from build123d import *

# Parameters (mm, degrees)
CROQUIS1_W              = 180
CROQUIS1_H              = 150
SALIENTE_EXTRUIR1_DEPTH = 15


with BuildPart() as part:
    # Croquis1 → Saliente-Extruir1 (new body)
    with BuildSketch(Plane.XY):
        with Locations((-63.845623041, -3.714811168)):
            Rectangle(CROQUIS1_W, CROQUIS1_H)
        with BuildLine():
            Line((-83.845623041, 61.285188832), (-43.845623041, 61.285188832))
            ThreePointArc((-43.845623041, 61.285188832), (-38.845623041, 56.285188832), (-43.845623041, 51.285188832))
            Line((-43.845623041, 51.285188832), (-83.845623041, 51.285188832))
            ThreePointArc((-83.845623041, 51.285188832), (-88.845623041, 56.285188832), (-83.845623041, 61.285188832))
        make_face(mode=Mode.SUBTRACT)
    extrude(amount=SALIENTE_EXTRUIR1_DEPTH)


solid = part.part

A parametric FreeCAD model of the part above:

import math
import FreeCAD as App
import Part
import Sketcher
from FreeCAD import Vector
Q = App.Units.Quantity


def add_polygon(sketch, points):
    """Adds a closed chain of lines whose ends are joined by coincident constraints."""
    first, n = sketch.GeometryCount, len(points)
    for a, b in zip(points, points[1:] + points[:1]):
        sketch.addGeometry(Part.LineSegment(App.Vector(*a, 0), App.Vector(*b, 0)), False)
    for i in range(n):
        sketch.addConstraint(Sketcher.Constraint("Coincident", first + i, 2, first + (i + 1) % n, 1))

doc = App.newDocument("Part")
body = doc.addObject("PartDesign::Body", "Body")

# Sketch on XY plane
sketch1 = doc.addObject("Sketcher::SketchObject", "Sketch")
body.addObject(sketch1)
sketch1.AttachmentSupport = (doc.XY_Plane, [""])
sketch1.MapMode = "FlatFace"
add_polygon(sketch1, [(-153.845623, 71.285189), (-153.845623, -78.714811), (26.154377, -78.714811), (26.154377, 71.285189)])  # lines 0-3
sketch1.addGeometry(Part.ArcOfCircle(Part.Circle(Vector(-83.845623, 56.285189, 0), Vector(0, 0, 1), 5), math.radians(90), math.radians(270)), False)  # 4
sketch1.addGeometry(Part.LineSegment(Vector(-83.845623, 61.285189, 0), Vector(-43.845623, 61.285189, 0)), False)  # 5
sketch1.addGeometry(Part.ArcOfCircle(Part.Circle(Vector(-43.845623, 56.285189, 0), Vector(0, 0, 1), 5), math.radians(-90), math.radians(90)), False)  # 6
sketch1.addGeometry(Part.LineSegment(Vector(-43.845623, 51.285189, 0), Vector(-83.845623, 51.285189, 0)), False)  # 7
sketch1.addConstraint(Sketcher.Constraint("Tangent", 4, 1, 5, 1))
sketch1.addConstraint(Sketcher.Constraint("Tangent", 5, 2, 6, 2))
sketch1.addConstraint(Sketcher.Constraint("Tangent", 6, 1, 7, 1))
sketch1.addConstraint(Sketcher.Constraint("Tangent", 7, 2, 4, 2))
sketch1.addConstraint(Sketcher.Constraint("Vertical", 0))
sketch1.addConstraint(Sketcher.Constraint("Horizontal", 1))
sketch1.addConstraint(Sketcher.Constraint("Vertical", 2))
sketch1.addConstraint(Sketcher.Constraint("Horizontal", 3))
sketch1.addConstraint(Sketcher.Constraint("Horizontal", 5))
sketch1.addConstraint(Sketcher.Constraint("Horizontal", 7))
sketch1.addConstraint(Sketcher.Constraint("Radius", 4, Q("5 mm")))
sketch1.addConstraint(Sketcher.Constraint("DistanceX", 1, 1, 1, 2, Q("180 mm")))
sketch1.addConstraint(Sketcher.Constraint("DistanceX", 5, 1, 5, 2, Q("40 mm")))
sketch1.addConstraint(Sketcher.Constraint("DistanceY", 0, 2, 0, 1, Q("150 mm")))
sketch1.addConstraint(Sketcher.Constraint("DistanceX", 0, 2, 4, 3, Q("70 mm")))
sketch1.addConstraint(Sketcher.Constraint("DistanceY", 0, 2, 4, 3, Q("135 mm")))
sketch1.addConstraint(Sketcher.Constraint("DistanceY", -1, 1, 4, 3, Q("56.285189 mm")))
sketch1.addConstraint(Sketcher.Constraint("DistanceX", 4, 3, -1, 1, Q("83.845623 mm")))
pad1 = doc.addObject("PartDesign::Pad", "Pad")
body.addObject(pad1)
pad1.Profile = sketch1
pad1.Length = 15

doc.recompute()
